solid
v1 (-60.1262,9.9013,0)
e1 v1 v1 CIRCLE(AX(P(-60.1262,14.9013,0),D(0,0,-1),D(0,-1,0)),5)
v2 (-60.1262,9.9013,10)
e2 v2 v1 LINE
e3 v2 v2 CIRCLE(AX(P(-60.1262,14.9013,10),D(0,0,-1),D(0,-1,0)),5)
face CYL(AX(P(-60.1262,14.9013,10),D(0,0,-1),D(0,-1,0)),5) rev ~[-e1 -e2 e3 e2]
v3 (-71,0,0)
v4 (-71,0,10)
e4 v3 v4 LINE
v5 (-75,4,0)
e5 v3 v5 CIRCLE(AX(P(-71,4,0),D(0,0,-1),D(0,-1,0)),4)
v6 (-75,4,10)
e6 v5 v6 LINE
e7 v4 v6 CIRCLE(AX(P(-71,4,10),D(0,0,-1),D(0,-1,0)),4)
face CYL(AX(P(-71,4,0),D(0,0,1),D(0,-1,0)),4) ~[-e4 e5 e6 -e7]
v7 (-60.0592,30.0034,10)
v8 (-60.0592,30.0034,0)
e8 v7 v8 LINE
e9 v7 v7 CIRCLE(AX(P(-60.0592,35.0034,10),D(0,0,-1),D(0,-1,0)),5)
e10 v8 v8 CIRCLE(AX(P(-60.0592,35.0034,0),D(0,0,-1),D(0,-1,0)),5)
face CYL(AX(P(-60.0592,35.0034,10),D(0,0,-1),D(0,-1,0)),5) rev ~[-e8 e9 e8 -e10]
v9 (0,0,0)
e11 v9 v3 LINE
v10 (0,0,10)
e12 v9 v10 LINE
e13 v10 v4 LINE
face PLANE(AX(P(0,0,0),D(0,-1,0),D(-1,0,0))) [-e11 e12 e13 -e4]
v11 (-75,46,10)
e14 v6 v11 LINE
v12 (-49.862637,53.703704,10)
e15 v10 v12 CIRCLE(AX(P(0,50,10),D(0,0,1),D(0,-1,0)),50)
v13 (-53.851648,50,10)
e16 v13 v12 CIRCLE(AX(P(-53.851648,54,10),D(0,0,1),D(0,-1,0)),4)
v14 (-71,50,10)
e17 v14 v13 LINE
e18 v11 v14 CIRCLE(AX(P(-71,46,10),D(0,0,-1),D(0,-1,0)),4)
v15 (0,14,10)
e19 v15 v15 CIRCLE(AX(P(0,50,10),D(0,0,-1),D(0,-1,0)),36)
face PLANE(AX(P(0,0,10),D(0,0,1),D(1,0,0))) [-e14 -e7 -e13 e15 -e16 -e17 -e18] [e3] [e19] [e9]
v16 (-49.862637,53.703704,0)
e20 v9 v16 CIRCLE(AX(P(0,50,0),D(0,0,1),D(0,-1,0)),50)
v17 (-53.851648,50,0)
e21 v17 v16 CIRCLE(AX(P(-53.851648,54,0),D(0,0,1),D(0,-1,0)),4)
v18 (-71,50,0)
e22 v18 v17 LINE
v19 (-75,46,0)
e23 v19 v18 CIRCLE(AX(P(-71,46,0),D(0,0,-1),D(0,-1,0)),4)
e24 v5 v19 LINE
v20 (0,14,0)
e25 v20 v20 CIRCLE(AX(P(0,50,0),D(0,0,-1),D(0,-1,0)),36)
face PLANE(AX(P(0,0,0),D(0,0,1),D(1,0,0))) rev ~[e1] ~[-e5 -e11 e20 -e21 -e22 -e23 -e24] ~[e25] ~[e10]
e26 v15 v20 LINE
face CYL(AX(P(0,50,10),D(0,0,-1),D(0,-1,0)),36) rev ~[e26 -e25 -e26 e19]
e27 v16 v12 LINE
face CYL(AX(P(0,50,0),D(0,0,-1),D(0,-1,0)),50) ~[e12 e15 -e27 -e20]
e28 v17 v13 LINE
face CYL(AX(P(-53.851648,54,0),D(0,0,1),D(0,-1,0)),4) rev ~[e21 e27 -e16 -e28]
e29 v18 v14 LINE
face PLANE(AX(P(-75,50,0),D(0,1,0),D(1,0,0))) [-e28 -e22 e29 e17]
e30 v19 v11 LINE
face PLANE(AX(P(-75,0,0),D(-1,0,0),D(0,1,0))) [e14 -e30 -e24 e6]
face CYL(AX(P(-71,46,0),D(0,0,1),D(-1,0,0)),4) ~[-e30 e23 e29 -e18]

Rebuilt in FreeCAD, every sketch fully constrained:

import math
import FreeCAD as App
import Part
import Sketcher
from FreeCAD import Vector
Q = App.Units.Quantity


def edges_at(feature, points):
    """Names of the edges that pass closest to the given points."""
    edges = feature.Shape.Edges
    near = lambda p: min(range(len(edges)), key=lambda i: edges[i].distToShape(Part.Vertex(*p))[0])
    return sorted({f"Edge{near(p) + 1}" for p in points})

doc = App.newDocument("Part")
body = doc.addObject("PartDesign::Body", "Body")

# Sketch on XY plane
sketch1 = doc.addObject("Sketcher::SketchObject", "Sketch")
body.addObject(sketch1)
sketch1.AttachmentSupport = (doc.XY_Plane, [""])
sketch1.MapMode = "FlatFace"
sketch1.addGeometry([
    Part.LineSegment(Vector(-75, 0, 0), Vector(0, 0, 0)),
    Part.ArcOfCircle(Part.Circle(Vector(0, 50, 0), Vector(0, 0, 1), 50), math.radians(-90), math.radians(180)),
    Part.LineSegment(Vector(-50, 50, 0), Vector(-75, 50, 0)),
    Part.LineSegment(Vector(-75, 50, 0), Vector(-75, 0, 0)),
], False)
sketch1.addConstraint([
    Sketcher.Constraint("Tangent", 0, 2, 1, 1),
    Sketcher.Constraint("Coincident", 1, 2, 2, 1),
    Sketcher.Constraint("Coincident", 2, 2, 3, 1),
    Sketcher.Constraint("Coincident", 3, 2, 0, 1),
    Sketcher.Constraint("Horizontal", 0),
    Sketcher.Constraint("Horizontal", 2),
    Sketcher.Constraint("Vertical", 3),
    Sketcher.Constraint("Coincident", 0, 2, -1, 1),
    Sketcher.Constraint("Radius", 1, Q("50 mm")),
    Sketcher.Constraint("DistanceX", 0, 1, 0, 2, Q("75 mm")),
    Sketcher.Constraint("DistanceY", 3, 2, 3, 1, Q("50 mm")),
])
pad1 = doc.addObject("PartDesign::Pad", "Pad")
body.addObject(pad1)
pad1.Profile = sketch1
pad1.Length = 10
doc.recompute()

fillet = doc.addObject("PartDesign::Fillet", "Fillet")
body.addObject(fillet)
fillet.Base = (pad1, edges_at(pad1, [(-75, 0, 5), (-75, 50, 5), (-50, 50, 5)]))
fillet.Radius = 4

# Sketch on XY plane
sketch2 = doc.addObject("Sketcher::SketchObject", "Sketch001")
body.addObject(sketch2)
sketch2.AttachmentSupport = (doc.XY_Plane, [""])
sketch2.MapMode = "FlatFace"
sketch2.AttachmentOffset = App.Placement(Vector(0, 0, 10), App.Rotation())
sketch2.addGeometry(Part.Circle(Vector(0, 50, 0), Vector(0, 0, 1), 36), False)
sketch2.addConstraint([
    Sketcher.Constraint("PointOnObject", 0, 3, -2),
    Sketcher.Constraint("Diameter", 0, Q("72 mm")),
    Sketcher.Constraint("DistanceY", -1, 1, 0, 3, Q("50 mm")),
])
doc.recompute()
hole = doc.addObject("PartDesign::Hole", "Hole")
body.addObject(hole)
hole.Profile = sketch2
hole.ThreadType = "None"
hole.Diameter = 72
hole.DepthType = "Dimension"
hole.Depth = 10
hole.DrillPoint = "Angled"
hole.DrillPointAngle = 118

# Sketch on XY plane
sketch3 = doc.addObject("Sketcher::SketchObject", "Sketch002")
body.addObject(sketch3)
sketch3.AttachmentSupport = (doc.XY_Plane, [""])
sketch3.MapMode = "FlatFace"
sketch3.AttachmentOffset = App.Placement(Vector(0, 0, 10), App.Rotation())
sketch3.addGeometry(Part.Circle(Vector(-60, 35, 0), Vector(0, 0, 1), 5), False)
sketch3.addConstraint([
    Sketcher.Constraint("Diameter", 0, Q("10 mm")),
    Sketcher.Constraint("DistanceX", 0, 3, -1, 1, Q("60.0592 mm")),
    Sketcher.Constraint("DistanceY", -1, 1, 0, 3, Q("35.0034 mm")),
])
doc.recompute()
hole2 = doc.addObject("PartDesign::Hole", "Hole001")
body.addObject(hole2)
hole2.Profile = sketch3
hole2.ThreadType = "None"
hole2.Diameter = 10
hole2.DepthType = "Dimension"
hole2.Depth = 10
hole2.DrillPoint = "Angled"
hole2.DrillPointAngle = 118

# Sketch on XY plane
sketch4 = doc.addObject("Sketcher::SketchObject", "Sketch003")
body.addObject(sketch4)
sketch4.AttachmentSupport = (doc.XY_Plane, [""])
sketch4.MapMode = "FlatFace"
sketch4.AttachmentOffset = App.Placement(Vector(0, 0, 10), App.Rotation())
sketch4.addGeometry(Part.Circle(Vector(-60, 15, 0), Vector(0, 0, 1), 5), False)
sketch4.addConstraint([
    Sketcher.Constraint("Diameter", 0, Q("10 mm")),
    Sketcher.Constraint("DistanceX", 0, 3, -1, 1, Q("60.1262 mm")),
    Sketcher.Constraint("DistanceY", -1, 1, 0, 3, Q("14.9013 mm")),
])
doc.recompute()
hole3 = doc.addObject("PartDesign::Hole", "Hole002")
body.addObject(hole3)
hole3.Profile = sketch4
hole3.ThreadType = "None"
hole3.Diameter = 10
hole3.DepthType = "Dimension"
hole3.Depth = 10
hole3.DrillPoint = "Angled"
hole3.DrillPointAngle = 118

doc.recompute()
